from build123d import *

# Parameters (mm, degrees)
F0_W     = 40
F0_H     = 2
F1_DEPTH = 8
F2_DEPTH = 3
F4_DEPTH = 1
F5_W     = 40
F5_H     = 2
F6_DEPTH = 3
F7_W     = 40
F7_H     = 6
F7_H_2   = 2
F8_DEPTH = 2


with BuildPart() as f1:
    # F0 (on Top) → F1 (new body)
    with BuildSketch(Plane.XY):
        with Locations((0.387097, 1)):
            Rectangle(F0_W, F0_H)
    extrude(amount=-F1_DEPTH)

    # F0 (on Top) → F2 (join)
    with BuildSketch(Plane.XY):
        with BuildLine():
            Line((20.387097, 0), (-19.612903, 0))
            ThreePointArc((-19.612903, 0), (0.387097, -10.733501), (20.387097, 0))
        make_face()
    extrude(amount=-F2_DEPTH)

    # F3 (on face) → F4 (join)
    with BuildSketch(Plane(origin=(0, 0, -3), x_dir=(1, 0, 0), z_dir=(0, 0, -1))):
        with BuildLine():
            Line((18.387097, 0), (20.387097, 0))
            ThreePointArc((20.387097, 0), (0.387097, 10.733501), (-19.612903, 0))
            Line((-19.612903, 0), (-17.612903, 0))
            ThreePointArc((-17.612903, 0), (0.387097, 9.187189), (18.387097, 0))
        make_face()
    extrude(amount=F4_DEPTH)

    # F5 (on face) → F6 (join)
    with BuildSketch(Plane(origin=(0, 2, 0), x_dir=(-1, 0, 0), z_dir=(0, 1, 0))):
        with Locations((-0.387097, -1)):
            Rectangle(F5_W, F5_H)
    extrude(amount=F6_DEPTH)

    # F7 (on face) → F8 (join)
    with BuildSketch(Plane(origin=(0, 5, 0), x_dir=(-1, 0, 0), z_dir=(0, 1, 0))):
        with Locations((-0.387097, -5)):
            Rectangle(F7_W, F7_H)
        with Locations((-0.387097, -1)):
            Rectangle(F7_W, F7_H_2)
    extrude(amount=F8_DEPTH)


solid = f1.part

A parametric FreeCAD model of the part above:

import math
import FreeCAD as App
import Part
import Sketcher

V = App.Vector
Q = App.Units.Quantity

doc = App.newDocument("Part")
body = doc.addObject("PartDesign::Body", "Body")

# Sketch on XY plane
sketch1 = body.newObject("Sketcher::SketchObject", "Sketch")
sketch1.AttachmentSupport = (doc.getObject("XY_Plane"), [""])
sketch1.MapMode = "FlatFace"
sketch1.addGeometry(Part.LineSegment(V(-19.6, 2, 0), V(-19.6, 0, 0)), False)
sketch1.addGeometry(Part.LineSegment(V(-19.6, 0, 0), V(20.4, 0, 0)), False)
sketch1.addGeometry(Part.LineSegment(V(20.4, 0, 0), V(20.4, 2, 0)), False)
sketch1.addGeometry(Part.LineSegment(V(20.4, 2, 0), V(-19.6, 2, 0)), False)
sketch1.addConstraint(Sketcher.Constraint("Coincident", 0, 2, 1, 1))
sketch1.addConstraint(Sketcher.Constraint("Coincident", 1, 2, 2, 1))
sketch1.addConstraint(Sketcher.Constraint("Coincident", 2, 2, 3, 1))
sketch1.addConstraint(Sketcher.Constraint("Coincident", 3, 2, 0, 1))
sketch1.addConstraint(Sketcher.Constraint("Vertical", 0))
sketch1.addConstraint(Sketcher.Constraint("Horizontal", 1))
sketch1.addConstraint(Sketcher.Constraint("Vertical", 2))
sketch1.addConstraint(Sketcher.Constraint("Horizontal", 3))
sketch1.addConstraint(Sketcher.Constraint("PointOnObject", 0, 2, -1))
sketch1.addConstraint(Sketcher.Constraint("DistanceX", 1, 1, 1, 2, Q("40 mm")))
sketch1.addConstraint(Sketcher.Constraint("DistanceY", 0, 2, 0, 1, Q("2 mm")))
sketch1.addConstraint(Sketcher.Constraint("DistanceX", 0, 2, -1, 1, Q("19.612903 mm")))
pad1 = body.newObject("PartDesign::Pad", "Pad")
pad1.Profile = sketch1
pad1.Length = 8
pad1.Reversed = True

# Sketch on XY plane
sketch2 = body.newObject("Sketcher::SketchObject", "Sketch001")
sketch2.AttachmentSupport = (doc.getObject("XY_Plane"), [""])
sketch2.MapMode = "FlatFace"
sketch2.addGeometry(Part.LineSegment(V(20, 0, 0), V(-20, 0, 0)), False)
sketch2.addGeometry(Part.ArcOfCircle(Part.Circle(V(0, 13, 0), V(0, 0, 1), 24), math.radians(-146), math.radians(-34)), False)
sketch2.addConstraint(Sketcher.Constraint("Coincident", 0, 1, 1, 2))
sketch2.addConstraint(Sketcher.Constraint("Coincident", 1, 1, 0, 2))
sketch2.addConstraint(Sketcher.Constraint("Horizontal", 0))
sketch2.addConstraint(Sketcher.Constraint("PointOnObject", 0, 1, -1))
sketch2.addConstraint(Sketcher.Constraint("Radius", 1, Q("24 mm")))
sketch2.addConstraint(Sketcher.Constraint("DistanceX", 0, 2, 0, 1, Q("40 mm")))
sketch2.addConstraint(Sketcher.Constraint("DistanceX", -1, 1, 1, 3, Q("0.387097 mm")))
pad2 = body.newObject("PartDesign::Pad", "Pad001")
pad2.Profile = sketch2
pad2.Length = 3
pad2.Reversed = True

# Sketch on XY plane
sketch3 = body.newObject("Sketcher::SketchObject", "Sketch002")
sketch3.AttachmentSupport = (doc.getObject("XY_Plane"), [""])
sketch3.MapMode = "FlatFace"
sketch3.AttachmentOffset = App.Placement(V(0, 0, -3), App.Rotation())
sketch3.addGeometry(Part.LineSegment(V(18.4, 0, 0), V(20.4, 0, 0)), False)
sketch3.addGeometry(Part.ArcOfCircle(Part.Circle(V(0.4, 13.3, 0), V(0, 0, 1), 24), math.radians(-146), math.radians(-34)), False)
sketch3.addGeometry(Part.LineSegment(V(-19.6, 0, 0), V(-17.6, 0, 0)), False)
sketch3.addGeometry(Part.ArcOfCircle(Part.Circle(V(0.4, 13, 0), V(0, 0, 1), 22.2), math.radians(-144), math.radians(-36)), False)
sketch3.addConstraint(Sketcher.Constraint("Coincident", 0, 2, 1, 2))
sketch3.addConstraint(Sketcher.Constraint("Coincident", 1, 1, 2, 1))
sketch3.addConstraint(Sketcher.Constraint("Coincident", 2, 2, 3, 1))
sketch3.addConstraint(Sketcher.Constraint("Coincident", 3, 2, 0, 1))
sketch3.addConstraint(Sketcher.Constraint("Horizontal", 0))
sketch3.addConstraint(Sketcher.Constraint("Horizontal", 2))
sketch3.addConstraint(Sketcher.Constraint("PointOnObject", 0, 2, -1))
sketch3.addConstraint(Sketcher.Constraint("PointOnObject", 1, 1, -1))
sketch3.addConstraint(Sketcher.Constraint("Vertical", 1, 3, 3, 3))
sketch3.addConstraint(Sketcher.Constraint("Radius", 1, Q("24 mm")))
sketch3.addConstraint(Sketcher.Constraint("DistanceX", 0, 1, 0, 2, Q("2 mm")))
sketch3.addConstraint(Sketcher.Constraint("DistanceX", 3, 3, 0, 2, Q("20 mm")))
sketch3.addConstraint(Sketcher.Constraint("Radius", 3, Q("22.226844 mm")))
sketch3.addConstraint(Sketcher.Constraint("DistanceX", -1, 1, 1, 3, Q("0.387097 mm")))
pad3 = body.newObject("PartDesign::Pad", "Pad002")
pad3.Profile = sketch3
pad3.Length = 1
pad3.Reversed = True

# Sketch on XZ plane
sketch4 = body.newObject("Sketcher::SketchObject", "Sketch003")
sketch4.AttachmentSupport = (doc.getObject("XZ_Plane"), [""])
sketch4.MapMode = "FlatFace"
sketch4.AttachmentOffset = App.Placement(V(0, 0, -2), App.Rotation())
sketch4.addGeometry(Part.LineSegment(V(20.4, 0, 0), V(20.4, -2, 0)), False)
sketch4.addGeometry(Part.LineSegment(V(20.4, -2, 0), V(-19.6, -2, 0)), False)
sketch4.addGeometry(Part.LineSegment(V(-19.6, -2, 0), V(-19.6, 0, 0)), False)
sketch4.addGeometry(Part.LineSegment(V(-19.6, 0, 0), V(20.4, 0, 0)), False)
sketch4.addConstraint(Sketcher.Constraint("Coincident", 0, 2, 1, 1))
sketch4.addConstraint(Sketcher.Constraint("Coincident", 1, 2, 2, 1))
sketch4.addConstraint(Sketcher.Constraint("Coincident", 2, 2, 3, 1))
sketch4.addConstraint(Sketcher.Constraint("Coincident", 3, 2, 0, 1))
sketch4.addConstraint(Sketcher.Constraint("Vertical", 0))
sketch4.addConstraint(Sketcher.Constraint("Horizontal", 1))
sketch4.addConstraint(Sketcher.Constraint("Vertical", 2))
sketch4.addConstraint(Sketcher.Constraint("Horizontal", 3))
sketch4.addConstraint(Sketcher.Constraint("PointOnObject", 2, 2, -1))
sketch4.addConstraint(Sketcher.Constraint("DistanceX", 1, 2, 1, 1, Q("40 mm")))
sketch4.addConstraint(Sketcher.Constraint("DistanceY", 0, 2, 0, 1, Q("2 mm")))
sketch4.addConstraint(Sketcher.Constraint("DistanceX", -1, 1, 0, 2, Q("20.387097 mm")))
pad4 = body.newObject("PartDesign::Pad", "Pad003")
pad4.Profile = sketch4
pad4.Length = 3
pad4.Reversed = True

# Sketch on XZ plane
sketch5 = body.newObject("Sketcher::SketchObject", "Sketch004")
sketch5.AttachmentSupport = (doc.getObject("XZ_Plane"), [""])
sketch5.MapMode = "FlatFace"
sketch5.AttachmentOffset = App.Placement(V(0, 0, -5), App.Rotation())
sketch5.addGeometry(Part.LineSegment(V(20, -8, 0), V(-20, -8, 0)), False)
sketch5.addGeometry(Part.LineSegment(V(-20, -8, 0), V(-20, 0, 0)), False)
sketch5.addGeometry(Part.LineSegment(V(-20, 0, 0), V(20, 0, 0)), False)
sketch5.addGeometry(Part.LineSegment(V(20, 0, 0), V(20, -8, 0)), False)
sketch5.addConstraint(Sketcher.Constraint("Coincident", 0, 2, 1, 1))
sketch5.addConstraint(Sketcher.Constraint("Coincident", 1, 2, 2, 1))
sketch5.addConstraint(Sketcher.Constraint("Coincident", 2, 2, 3, 1))
sketch5.addConstraint(Sketcher.Constraint("Coincident", 3, 2, 0, 1))
sketch5.addConstraint(Sketcher.Constraint("Horizontal", 0))
sketch5.addConstraint(Sketcher.Constraint("Vertical", 1))
sketch5.addConstraint(Sketcher.Constraint("Horizontal", 2))
sketch5.addConstraint(Sketcher.Constraint("Vertical", 3))
sketch5.addConstraint(Sketcher.Constraint("PointOnObject", 1, 2, -1))
sketch5.addConstraint(Sketcher.Constraint("DistanceX", 0, 2, 0, 1, Q("40 mm")))
sketch5.addConstraint(Sketcher.Constraint("DistanceY", 1, 1, 1, 2, Q("8 mm")))
sketch5.addConstraint(Sketcher.Constraint("DistanceX", 0, 2, -1, 1, Q("19.612903 mm")))
pad5 = body.newObject("PartDesign::Pad", "Pad004")
pad5.Profile = sketch5
pad5.Length = 2
pad5.Reversed = True

doc.recompute()
